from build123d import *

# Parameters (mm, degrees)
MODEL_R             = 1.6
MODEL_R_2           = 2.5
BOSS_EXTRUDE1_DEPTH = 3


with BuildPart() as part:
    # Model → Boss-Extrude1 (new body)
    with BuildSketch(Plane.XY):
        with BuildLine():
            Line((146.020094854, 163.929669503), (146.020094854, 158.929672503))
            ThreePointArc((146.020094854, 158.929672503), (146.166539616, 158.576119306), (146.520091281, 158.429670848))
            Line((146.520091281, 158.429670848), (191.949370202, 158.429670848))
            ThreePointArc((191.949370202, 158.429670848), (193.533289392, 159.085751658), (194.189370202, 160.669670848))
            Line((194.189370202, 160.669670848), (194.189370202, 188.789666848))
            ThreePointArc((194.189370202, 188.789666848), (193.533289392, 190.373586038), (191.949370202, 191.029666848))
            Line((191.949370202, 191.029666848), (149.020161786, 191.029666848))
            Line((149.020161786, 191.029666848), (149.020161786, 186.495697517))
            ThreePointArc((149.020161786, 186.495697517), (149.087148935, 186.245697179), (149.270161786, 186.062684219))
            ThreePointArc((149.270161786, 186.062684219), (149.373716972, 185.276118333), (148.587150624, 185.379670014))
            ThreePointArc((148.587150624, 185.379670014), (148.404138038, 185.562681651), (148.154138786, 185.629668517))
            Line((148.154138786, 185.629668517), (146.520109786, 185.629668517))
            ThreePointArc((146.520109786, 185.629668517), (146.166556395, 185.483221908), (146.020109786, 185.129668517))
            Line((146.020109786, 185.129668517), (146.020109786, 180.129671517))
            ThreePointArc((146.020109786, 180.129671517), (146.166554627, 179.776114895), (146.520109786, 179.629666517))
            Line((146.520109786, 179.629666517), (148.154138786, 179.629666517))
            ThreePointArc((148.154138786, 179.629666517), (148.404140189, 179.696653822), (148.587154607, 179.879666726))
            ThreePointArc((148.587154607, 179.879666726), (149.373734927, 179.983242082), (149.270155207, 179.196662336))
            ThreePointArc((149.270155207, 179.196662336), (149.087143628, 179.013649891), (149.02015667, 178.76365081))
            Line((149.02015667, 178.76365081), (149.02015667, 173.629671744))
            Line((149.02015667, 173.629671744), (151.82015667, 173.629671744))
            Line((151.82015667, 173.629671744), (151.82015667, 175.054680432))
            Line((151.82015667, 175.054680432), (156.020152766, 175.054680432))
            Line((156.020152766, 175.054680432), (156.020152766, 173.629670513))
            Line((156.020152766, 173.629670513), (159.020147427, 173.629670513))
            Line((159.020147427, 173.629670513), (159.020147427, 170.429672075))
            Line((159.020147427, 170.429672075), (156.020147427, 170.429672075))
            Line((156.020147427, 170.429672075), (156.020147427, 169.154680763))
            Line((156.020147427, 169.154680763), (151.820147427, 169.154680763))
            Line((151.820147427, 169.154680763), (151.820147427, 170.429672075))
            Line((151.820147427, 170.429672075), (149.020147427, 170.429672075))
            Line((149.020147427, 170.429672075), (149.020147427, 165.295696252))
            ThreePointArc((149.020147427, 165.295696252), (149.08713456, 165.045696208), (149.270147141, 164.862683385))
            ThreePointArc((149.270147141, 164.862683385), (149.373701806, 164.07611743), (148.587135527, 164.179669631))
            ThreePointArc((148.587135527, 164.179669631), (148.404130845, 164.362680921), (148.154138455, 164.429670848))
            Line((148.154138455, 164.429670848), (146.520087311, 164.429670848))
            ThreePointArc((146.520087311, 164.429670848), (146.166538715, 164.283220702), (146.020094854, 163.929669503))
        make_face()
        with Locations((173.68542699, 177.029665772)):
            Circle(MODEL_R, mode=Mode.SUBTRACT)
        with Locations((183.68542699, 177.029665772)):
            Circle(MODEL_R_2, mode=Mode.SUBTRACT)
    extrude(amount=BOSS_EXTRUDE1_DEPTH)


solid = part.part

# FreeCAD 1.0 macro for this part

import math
import FreeCAD as App
import Part
import Sketcher

V = App.Vector

doc = App.newDocument("Part")
body = doc.addObject("PartDesign::Body", "Body")

# Sketch on XY plane
sketch1 = body.newObject("Sketcher::SketchObject", "Sketch")
sketch1.AttachmentSupport = (doc.getObject("XY_Plane"), [""])
sketch1.MapMode = "FlatFace"
sketch1.addGeometry(Part.LineSegment(V(146.02, 163.93, 0), V(146.02, 158.93, 0)), False)
sketch1.addGeometry(Part.ArcOfCircle(Part.Circle(V(146.52, 158.93, 0), V(0, 0, 1), 0.5), math.radians(180), math.radians(270)), False)
sketch1.addGeometry(Part.LineSegment(V(146.52, 158.43, 0), V(191.95, 158.43, 0)), False)
sketch1.addGeometry(Part.ArcOfCircle(Part.Circle(V(191.95, 160.67, 0), V(0, 0, 1), 2.24), math.radians(-90), math.radians(0)), False)
sketch1.addGeometry(Part.LineSegment(V(194.19, 160.67, 0), V(194.19, 188.79, 0)), False)
sketch1.addGeometry(Part.ArcOfCircle(Part.Circle(V(191.95, 188.79, 0), V(0, 0, 1), 2.24), math.radians(0), math.radians(90)), False)
sketch1.addGeometry(Part.LineSegment(V(191.95, 191.03, 0), V(149.02, 191.03, 0)), False)
sketch1.addGeometry(Part.LineSegment(V(149.02, 191.03, 0), V(149.02, 186.5, 0)), False)
sketch1.addGeometry(Part.ArcOfCircle(Part.Circle(V(149.52, 186.5, 0), V(0, 0, 1), 0.5), math.radians(180), math.radians(240)), False)
sketch1.addGeometry(Part.ArcOfCircle(Part.Circle(V(149.02, 185.63, 0), V(0, 0, 1), 0.5), math.radians(-150), math.radians(60)), False)
sketch1.addGeometry(Part.ArcOfCircle(Part.Circle(V(148.15, 185.13, 0), V(0, 0, 1), 0.5), math.radians(30), math.radians(90)), False)
sketch1.addGeometry(Part.LineSegment(V(148.15, 185.63, 0), V(146.52, 185.63, 0)), False)
sketch1.addGeometry(Part.ArcOfCircle(Part.Circle(V(146.52, 185.13, 0), V(0, 0, 1), 0.5), math.radians(90), math.radians(180)), False)
sketch1.addGeometry(Part.LineSegment(V(146.02, 185.13, 0), V(146.02, 180.13, 0)), False)
sketch1.addGeometry(Part.ArcOfCircle(Part.Circle(V(146.52, 180.13, 0), V(0, 0, 1), 0.5), math.radians(180), math.radians(270)), False)
sketch1.addGeometry(Part.LineSegment(V(146.52, 179.63, 0), V(148.15, 179.63, 0)), False)
sketch1.addGeometry(Part.ArcOfCircle(Part.Circle(V(148.15, 180.13, 0), V(0, 0, 1), 0.5), math.radians(-90), math.radians(-30)), False)
sketch1.addGeometry(Part.ArcOfCircle(Part.Circle(V(149.02, 179.63, 0), V(0, 0, 1), 0.5), math.radians(-60), math.radians(150)), False)
sketch1.addGeometry(Part.ArcOfCircle(Part.Circle(V(149.52, 178.76, 0), V(0, 0, 1), 0.5), math.radians(120), math.radians(180)), False)
sketch1.addGeometry(Part.LineSegment(V(149.02, 178.76, 0), V(149.02, 173.63, 0)), False)
sketch1.addGeometry(Part.LineSegment(V(149.02, 173.63, 0), V(151.82, 173.63, 0)), False)
sketch1.addGeometry(Part.LineSegment(V(151.82, 173.63, 0), V(151.82, 175.05, 0)), False)
sketch1.addGeometry(Part.LineSegment(V(151.82, 175.05, 0), V(156.02, 175.05, 0)), False)
sketch1.addGeometry(Part.LineSegment(V(156.02, 175.05, 0), V(156.02, 173.63, 0)), False)
sketch1.addGeometry(Part.LineSegment(V(156.02, 173.63, 0), V(159.02, 173.63, 0)), False)
sketch1.addGeometry(Part.LineSegment(V(159.02, 173.63, 0), V(159.02, 170.43, 0)), False)
sketch1.addGeometry(Part.LineSegment(V(159.02, 170.43, 0), V(156.02, 170.43, 0)), False)
sketch1.addGeometry(Part.LineSegment(V(156.02, 170.43, 0), V(156.02, 169.15, 0)), False)
sketch1.addGeometry(Part.LineSegment(V(156.02, 169.15, 0), V(151.82, 169.15, 0)), False)
sketch1.addGeometry(Part.LineSegment(V(151.82, 169.15, 0), V(151.82, 170.43, 0)), False)
sketch1.addGeometry(Part.LineSegment(V(151.82, 170.43, 0), V(149.02, 170.43, 0)), False)
sketch1.addGeometry(Part.LineSegment(V(149.02, 170.43, 0), V(149.02, 165.3, 0)), False)
sketch1.addGeometry(Part.ArcOfCircle(Part.Circle(V(149.52, 165.3, 0), V(0, 0, 1), 0.5), math.radians(180), math.radians(240)), False)
sketch1.addGeometry(Part.ArcOfCircle(Part.Circle(V(149.02, 164.43, 0), V(0, 0, 1), 0.5), math.radians(-150), math.radians(60)), False)
sketch1.addGeometry(Part.ArcOfCircle(Part.Circle(V(148.15, 163.93, 0), V(0, 0, 1), 0.5), math.radians(30), math.radians(90)), False)
sketch1.addGeometry(Part.LineSegment(V(148.15, 164.43, 0), V(146.52, 164.43, 0)), False)
sketch1.addGeometry(Part.ArcOfCircle(Part.Circle(V(146.52, 163.93, 0), V(0, 0, 1), 0.5), math.radians(90), math.radians(180)), False)
sketch1.addGeometry(Part.Circle(V(173.69, 177.03, 0), V(0, 0, 1), 1.6), False)
sketch1.addGeometry(Part.Circle(V(183.69, 177.03, 0), V(0, 0, 1), 2.5), False)
sketch1.addConstraint(Sketcher.Constraint("Coincident", 0, 2, 1, 1))
sketch1.addConstraint(Sketcher.Constraint("Coincident", 1, 2, 2, 1))
sketch1.addConstraint(Sketcher.Constraint("Tangent", 2, 2, 3, 1))
sketch1.addConstraint(Sketcher.Constraint("Tangent", 3, 2, 4, 1))
sketch1.addConstraint(Sketcher.Constraint("Tangent", 4, 2, 5, 1))
sketch1.addConstraint(Sketcher.Constraint("Tangent", 5, 2, 6, 1))
sketch1.addConstraint(Sketcher.Constraint("Coincident", 6, 2, 7, 1))
sketch1.addConstraint(Sketcher.Constraint("Tangent", 7, 2, 8, 1))
sketch1.addConstraint(Sketcher.Constraint("Coincident", 8, 2, 9, 2))
sketch1.addConstraint(Sketcher.Constraint("Tangent", 9, 1, 10, 1))
sketch1.addConstraint(Sketcher.Constraint("Tangent", 10, 2, 11, 1))
sketch1.addConstraint(Sketcher.Constraint("Tangent", 11, 2, 12, 1))
sketch1.addConstraint(Sketcher.Constraint("Tangent", 12, 2, 13, 1))
sketch1.addConstraint(Sketcher.Constraint("Coincident", 13, 2, 14, 1))
sketch1.addConstraint(Sketcher.Constraint("Tangent", 14, 2, 15, 1))
sketch1.addConstraint(Sketcher.Constraint("Tangent", 15, 2, 16, 1))
sketch1.addConstraint(Sketcher.Constraint("Coincident", 16, 2, 17, 2))
sketch1.addConstraint(Sketcher.Constraint("Coincident", 17, 1, 18, 1))
sketch1.addConstraint(Sketcher.Constraint("Tangent", 18, 2, 19, 1))
sketch1.addConstraint(Sketcher.Constraint("Coincident", 19, 2, 20, 1))
sketch1.addConstraint(Sketcher.Constraint("Coincident", 20, 2, 21, 1))
sketch1.addConstraint(Sketcher.Constraint("Coincident", 21, 2, 22, 1))
sketch1.addConstraint(Sketcher.Constraint("Coincident", 22, 2, 23, 1))
sketch1.addConstraint(Sketcher.Constraint("Coincident", 23, 2, 24, 1))
sketch1.addConstraint(Sketcher.Constraint("Coincident", 24, 2, 25, 1))
sketch1.addConstraint(Sketcher.Constraint("Coincident", 25, 2, 26, 1))
sketch1.addConstraint(Sketcher.Constraint("Coincident", 26, 2, 27, 1))
sketch1.addConstraint(Sketcher.Constraint("Coincident", 27, 2, 28, 1))
sketch1.addConstraint(Sketcher.Constraint("Coincident", 28, 2, 29, 1))
sketch1.addConstraint(Sketcher.Constraint("Coincident", 29, 2, 30, 1))
sketch1.addConstraint(Sketcher.Constraint("Coincident", 30, 2, 31, 1))
sketch1.addConstraint(Sketcher.Constraint("Tangent", 31, 2, 32, 1))
sketch1.addConstraint(Sketcher.Constraint("Coincident", 32, 2, 33, 2))
sketch1.addConstraint(Sketcher.Constraint("Coincident", 33, 1, 34, 1))
sketch1.addConstraint(Sketcher.Constraint("Coincident", 34, 2, 35, 1))
sketch1.addConstraint(Sketcher.Constraint("Coincident", 35, 2, 36, 1))
sketch1.addConstraint(Sketcher.Constraint("Tangent", 36, 2, 0, 1))
sketch1.addConstraint(Sketcher.Constraint("Vertical", 0))
sketch1.addConstraint(Sketcher.Constraint("Horizontal", 2))
sketch1.addConstraint(Sketcher.Constraint("Vertical", 4))
sketch1.addConstraint(Sketcher.Constraint("Horizontal", 6))
sketch1.addConstraint(Sketcher.Constraint("Vertical", 7))
sketch1.addConstraint(Sketcher.Constraint("Horizontal", 11))
sketch1.addConstraint(Sketcher.Constraint("Vertical", 13))
sketch1.addConstraint(Sketcher.Constraint("Horizontal", 15))
sketch1.addConstraint(Sketcher.Constraint("Vertical", 19))
sketch1.addConstraint(Sketcher.Constraint("Horizontal", 20))
sketch1.addConstraint(Sketcher.Constraint("Vertical", 21))
sketch1.addConstraint(Sketcher.Constraint("Horizontal", 22))
sketch1.addConstraint(Sketcher.Constraint("Vertical", 23))
sketch1.addConstraint(Sketcher.Constraint("Horizontal", 24))
sketch1.addConstraint(Sketcher.Constraint("Vertical", 25))
sketch1.addConstraint(Sketcher.Constraint("Horizontal", 26))
sketch1.addConstraint(Sketcher.Constraint("Vertical", 27))
sketch1.addConstraint(Sketcher.Constraint("Horizontal", 28))
sketch1.addConstraint(Sketcher.Constraint("Vertical", 29))
sketch1.addConstraint(Sketcher.Constraint("Horizontal", 30))
sketch1.addConstraint(Sketcher.Constraint("Vertical", 31))
sketch1.addConstraint(Sketcher.Constraint("Horizontal", 35))
sketch1.addConstraint(Sketcher.Constraint("Equal", 3, 5))
sketch1.addConstraint(Sketcher.Constraint("Equal", 1, 8))
sketch1.addConstraint(Sketcher.Constraint("Equal", 8, 9))
sketch1.addConstraint(Sketcher.Constraint("Equal", 9, 10))
sketch1.addConstraint(Sketcher.Constraint("Equal", 10, 12))
sketch1.addConstraint(Sketcher.Constraint("Equal", 12, 14))
sketch1.addConstraint(Sketcher.Constraint("Equal", 14, 17))
sketch1.addConstraint(Sketcher.Constraint("Equal", 17, 18))
sketch1.addConstraint(Sketcher.Constraint("Equal", 18, 32))
sketch1.addConstraint(Sketcher.Constraint("Equal", 32, 33))
sketch1.addConstraint(Sketcher.Constraint("Equal", 33, 36))
sketch1.addConstraint(Sketcher.Constraint("Horizontal", 37, 3, 38, 3))
sketch1.addConstraint(Sketcher.Constraint("Horizontal", 1, 3, 0, 2))
sketch1.addConstraint(Sketcher.Constraint("Horizontal", 16, 3, 13, 2))
sketch1.addConstraint(Sketcher.Constraint("Horizontal", 20, 2, 23, 2))
sketch1.addConstraint(Sketcher.Constraint("Horizontal", 26, 2, 29, 2))
sketch1.addConstraint(Sketcher.Constraint("Horizontal", 33, 3, 34, 2))
sketch1.addConstraint(Sketcher.Constraint("Vertical", 10, 3, 16, 3))
sketch1.addConstraint(Sketcher.Constraint("Vertical", 9, 3, 6, 2))
sketch1.addConstraint(Sketcher.Constraint("Vertical", 33, 3, 30, 2))
sketch1.addConstraint(Sketcher.Constraint("Vertical", 15, 2, 34, 2))
sketch1.addConstraint(Sketcher.Constraint("Equal", 20, 30))
sketch1.addConstraint(Sketcher.Constraint("Equal", 0, 13))
sketch1.addConstraint(Sketcher.Constraint("Diameter", 38, 5.0))
sketch1.addConstraint(Sketcher.Constraint("Diameter", 37, 3.2))
sketch1.addConstraint(Sketcher.Constraint("Radius", 1, 0.5))
sketch1.addConstraint(Sketcher.Constraint("DistanceX", 26, 2, 26, 1, 3.0))
sketch1.addConstraint(Sketcher.Constraint("Radius", 3, 2.24))
sketch1.addConstraint(Sketcher.Constraint("DistanceX", 20, 1, 20, 2, 2.8))
sketch1.addConstraint(Sketcher.Constraint("DistanceX", 28, 2, 28, 1, 4.2))
sketch1.addConstraint(Sketcher.Constraint("DistanceY", 25, 2, 25, 1, 3.199998))
sketch1.addConstraint(Sketcher.Constraint("DistanceY", 14, 3, 10, 3, 5.000002))
sketch1.addConstraint(Sketcher.Constraint("DistanceY", 1, 3, 36, 3, 4.999999))
sketch1.addConstraint(Sketcher.Constraint("DistanceX", 37, 3, 38, 3, 10.0))
sketch1.addConstraint(Sketcher.Constraint("DistanceY", 38, 3, 5, 2, 14.000001))
sketch1.addConstraint(Sketcher.Constraint("DistanceY", 1, 3, 9, 3, 26.7))
sketch1.addConstraint(Sketcher.Constraint("DistanceY", 16, 3, 9, 3, 5.499999))
sketch1.addConstraint(Sketcher.Constraint("DistanceY", 10, 3, 6, 2, 5.899998))
sketch1.addConstraint(Sketcher.Constraint("DistanceY", 27, 2, 22, 2, 5.9))
sketch1.addConstraint(Sketcher.Constraint("DistanceX", 9, 3, 8, 2, 0.249999))
sketch1.addConstraint(Sketcher.Constraint("DistanceY", 15, 2, 16, 2, 0.25))
sketch1.addConstraint(Sketcher.Constraint("DistanceX", 17, 1, 18, 3, 0.250001))
sketch1.addConstraint(Sketcher.Constraint("DistanceX", 33, 3, 32, 2, 0.249999))
sketch1.addConstraint(Sketcher.Constraint("DistanceY", 33, 1, 33, 3, 0.250001))
sketch1.addConstraint(Sketcher.Constraint("Radius", 34, 0.499987))
sketch1.addConstraint(Sketcher.Constraint("DistanceX", 16, 2, 17, 1, 0.683001))
sketch1.addConstraint(Sketcher.Constraint("DistanceX", 2, 1, 2, 2, 45.429279))
sketch1.addConstraint(Sketcher.Constraint("DistanceX", 6, 2, 6, 1, 42.929208))
sketch1.addConstraint(Sketcher.Constraint("DistanceX", 11, 2, 11, 1, 1.634029))
sketch1.addConstraint(Sketcher.Constraint("DistanceX", 35, 2, 35, 1, 1.634051))
sketch1.addConstraint(Sketcher.Constraint("DistanceY", 19, 2, 19, 1, 5.133979))
sketch1.addConstraint(Sketcher.Constraint("DistanceY", 21, 1, 21, 2, 1.425009))
sketch1.addConstraint(Sketcher.Constraint("DistanceX", 22, 1, 22, 2, 4.199996))
sketch1.addConstraint(Sketcher.Constraint("DistanceX", 24, 1, 24, 2, 2.999995))
sketch1.addConstraint(Sketcher.Constraint("DistanceY", 31, 2, 31, 1, 5.133976))
sketch1.addConstraint(Sketcher.Constraint("DistanceY", -1, 1, 1, 3, 158.929671))
sketch1.addConstraint(Sketcher.Constraint("DistanceX", -1, 1, 3, 3, 191.94937))
sketch1.addConstraint(Sketcher.Constraint("DistanceX", 36, 3, 33, 3, 2.500052))
sketch1.addConstraint(Sketcher.Constraint("DistanceX", 18, 3, 37, 3, 24.16527))
pad1 = body.newObject("PartDesign::Pad", "Pad")
pad1.Profile = sketch1
pad1.Length = 3

doc.recompute()
